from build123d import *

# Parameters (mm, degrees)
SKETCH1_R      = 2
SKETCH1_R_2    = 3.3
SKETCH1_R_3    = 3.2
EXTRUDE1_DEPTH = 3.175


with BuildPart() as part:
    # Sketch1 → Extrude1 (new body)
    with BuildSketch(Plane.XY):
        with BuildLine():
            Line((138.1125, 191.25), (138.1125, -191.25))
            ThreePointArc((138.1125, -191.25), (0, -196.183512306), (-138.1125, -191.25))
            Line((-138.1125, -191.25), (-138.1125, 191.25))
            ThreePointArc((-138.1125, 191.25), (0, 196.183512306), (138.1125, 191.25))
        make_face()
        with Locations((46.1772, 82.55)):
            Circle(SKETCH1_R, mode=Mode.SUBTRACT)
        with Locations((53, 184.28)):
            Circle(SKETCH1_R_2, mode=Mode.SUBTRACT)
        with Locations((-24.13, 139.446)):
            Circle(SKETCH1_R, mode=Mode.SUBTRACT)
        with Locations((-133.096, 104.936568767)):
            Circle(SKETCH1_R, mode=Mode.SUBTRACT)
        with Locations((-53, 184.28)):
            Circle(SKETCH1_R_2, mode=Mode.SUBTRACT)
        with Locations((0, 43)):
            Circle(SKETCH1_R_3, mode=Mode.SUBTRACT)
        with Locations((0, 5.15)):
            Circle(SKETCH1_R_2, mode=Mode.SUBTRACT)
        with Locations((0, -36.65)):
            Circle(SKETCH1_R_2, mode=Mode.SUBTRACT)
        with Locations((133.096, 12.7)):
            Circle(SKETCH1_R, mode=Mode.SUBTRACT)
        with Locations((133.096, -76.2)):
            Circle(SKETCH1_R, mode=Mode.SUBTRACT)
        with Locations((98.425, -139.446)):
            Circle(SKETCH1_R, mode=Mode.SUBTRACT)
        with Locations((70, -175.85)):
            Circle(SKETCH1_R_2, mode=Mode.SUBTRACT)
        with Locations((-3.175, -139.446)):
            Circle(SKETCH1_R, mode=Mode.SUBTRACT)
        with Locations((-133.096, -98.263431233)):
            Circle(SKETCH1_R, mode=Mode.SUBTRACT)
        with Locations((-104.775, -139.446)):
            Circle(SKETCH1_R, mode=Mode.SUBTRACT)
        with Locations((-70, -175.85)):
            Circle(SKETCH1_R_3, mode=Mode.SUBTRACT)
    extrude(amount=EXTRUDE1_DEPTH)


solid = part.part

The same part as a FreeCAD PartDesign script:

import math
import FreeCAD as App
import Part
import Sketcher
from FreeCAD import Vector

doc = App.newDocument("Part")
body = doc.addObject("PartDesign::Body", "Body")

sketch1 = body.newObject("Sketcher::SketchObject", "Sketch")
sketch1.AttachmentSupport = (doc.getObject("XY_Plane"), [""])
sketch1.MapMode = "FlatFace"
sketch1.addGeometry([
    Part.LineSegment(Vector(138.1, -191.2, 0), Vector(138.1, 191.2, 0)),
    Part.ArcOfCircle(Part.Circle(Vector(0, -1739.5, 0), Vector(0, 0, 1), 1935.7), math.radians(85.91), math.radians(94.09)),
    Part.LineSegment(Vector(-138.1, 191.2, 0), Vector(-138.1, -191.2, 0)),
    Part.ArcOfCircle(Part.Circle(Vector(0, 1739.5, 0), Vector(0, 0, 1), 1935.7), math.radians(-94.09), math.radians(-85.91)),
    Part.Circle(Vector(70, -175.8, 0), Vector(0, 0, 1), 3.3),
    Part.Circle(Vector(98.4, -139.4, 0), Vector(0, 0, 1), 2),
    Part.Circle(Vector(133.1, -76.2, 0), Vector(0, 0, 1), 2),
    Part.Circle(Vector(-3.2, -139.4, 0), Vector(0, 0, 1), 2),
    Part.Circle(Vector(-70, -175.8, 0), Vector(0, 0, 1), 3.2),
    Part.Circle(Vector(-104.8, -139.4, 0), Vector(0, 0, 1), 2),
    Part.Circle(Vector(-133.1, -98.3, 0), Vector(0, 0, 1), 2),
    Part.Circle(Vector(0, -36.6, 0), Vector(0, 0, 1), 3.3),
    Part.Circle(Vector(133.1, 12.7, 0), Vector(0, 0, 1), 2),
    Part.Circle(Vector(46.2, 82.5, 0), Vector(0, 0, 1), 2),
    Part.Circle(Vector(53, 184.3, 0), Vector(0, 0, 1), 3.3),
    Part.Circle(Vector(0, 5.2, 0), Vector(0, 0, 1), 3.3),
    Part.Circle(Vector(0, 43, 0), Vector(0, 0, 1), 3.2),
    Part.Circle(Vector(-24.1, 139.4, 0), Vector(0, 0, 1), 2),
    Part.Circle(Vector(-53, 184.3, 0), Vector(0, 0, 1), 3.3),
    Part.Circle(Vector(-133.1, 104.9, 0), Vector(0, 0, 1), 2),
], False)
sketch1.addConstraint([
    Sketcher.Constraint("Coincident", 0, 2, 1, 1),
    Sketcher.Constraint("Coincident", 1, 2, 2, 1),
    Sketcher.Constraint("Coincident", 2, 2, 3, 1),
    Sketcher.Constraint("Coincident", 3, 2, 0, 1),
    Sketcher.Constraint("Vertical", 0),
    Sketcher.Constraint("Vertical", 2),
    Sketcher.Constraint("Equal", 1, 3),
    Sketcher.Constraint("Equal", 5, 6),
    Sketcher.Constraint("Equal", 6, 7),
    Sketcher.Constraint("Equal", 7, 9),
    Sketcher.Constraint("Equal", 9, 10),
    Sketcher.Constraint("Equal", 4, 11),
    Sketcher.Constraint("Equal", 10, 12),
    Sketcher.Constraint("Equal", 12, 13),
    Sketcher.Constraint("Equal", 11, 14),
    Sketcher.Constraint("Equal", 14, 15),
    Sketcher.Constraint("Equal", 8, 16),
    Sketcher.Constraint("Equal", 13, 17),
    Sketcher.Constraint("Equal", 15, 18),
    Sketcher.Constraint("Equal", 17, 19),
    Sketcher.Constraint("Symmetric", 1, 3, 3, 3, -1, 1),
    Sketcher.Constraint("Symmetric", 4, 3, 8, 3, -2),
    Sketcher.Constraint("Symmetric", 14, 3, 18, 3, -2),
    Sketcher.Constraint("PointOnObject", 1, 3, -2),
    Sketcher.Constraint("PointOnObject", 11, 3, -2),
    Sketcher.Constraint("PointOnObject", 15, 3, -2),
    Sketcher.Constraint("PointOnObject", 16, 3, -2),
    Sketcher.Constraint("Horizontal", 5, 3, 7, 3),
    Sketcher.Constraint("Horizontal", 7, 3, 9, 3),
    Sketcher.Constraint("Vertical", 6, 3, 12, 3),
    Sketcher.Constraint("Vertical", 10, 3, 19, 3),
    Sketcher.Constraint("Equal", 0, 2),
    Sketcher.Constraint("Diameter", 5, 4.0),
    Sketcher.Constraint("Diameter", 4, 6.6),
    Sketcher.Constraint("Diameter", 8, 6.4),
    Sketcher.Constraint("Radius", 1, 1935.68),
    Sketcher.Constraint("DistanceY", 0, 1, 0, 2, 382.5),
    Sketcher.Constraint("DistanceX", -1, 1, 4, 3, 70.0),
    Sketcher.Constraint("DistanceX", -1, 1, 14, 3, 53.0),
    Sketcher.Constraint("DistanceY", -1, 1, 16, 3, 43.0),
    Sketcher.Constraint("DistanceY", 6, 3, -1, 1, 76.2),
    Sketcher.Constraint("DistanceY", -1, 1, 12, 3, 12.7),
    Sketcher.Constraint("DistanceX", 7, 3, 5, 3, 101.6),
    Sketcher.Constraint("DistanceX", 9, 3, 7, 3, 101.6),
    Sketcher.Constraint("DistanceY", 11, 3, 13, 3, 119.2),
    Sketcher.Constraint("DistanceY", 11, 3, 15, 3, 41.8),
    Sketcher.Constraint("DistanceY", 13, 3, 0, 2, 108.7),
    Sketcher.Constraint("DistanceY", 2, 2, 8, 3, 15.4),
    Sketcher.Constraint("DistanceY", -1, 1, 14, 3, 184.28),
    Sketcher.Constraint("DistanceX", 17, 3, -1, 1, 24.13),
    Sketcher.Constraint("DistanceX", -1, 1, 5, 3, 98.425),
    Sketcher.Constraint("DistanceY", 5, 3, -1, 1, 139.446),
    Sketcher.Constraint("DistanceX", -1, 1, 6, 3, 133.096),
    Sketcher.Constraint("DistanceX", 10, 3, -1, 1, 133.096),
    Sketcher.Constraint("DistanceY", -1, 1, 17, 3, 139.446),
    Sketcher.Constraint("DistanceX", -1, 1, 13, 3, 46.1772),
    Sketcher.Constraint("DistanceX", -1, 1, 0, 2, 138.1125),
    Sketcher.Constraint("DistanceY", 10, 3, -1, 1, 98.263431),
    Sketcher.Constraint("DistanceY", -1, 1, 19, 3, 104.936569),
])
pad1 = body.newObject("PartDesign::Pad", "Pad")
pad1.Profile = sketch1
pad1.Length = 3.175

doc.recompute()
